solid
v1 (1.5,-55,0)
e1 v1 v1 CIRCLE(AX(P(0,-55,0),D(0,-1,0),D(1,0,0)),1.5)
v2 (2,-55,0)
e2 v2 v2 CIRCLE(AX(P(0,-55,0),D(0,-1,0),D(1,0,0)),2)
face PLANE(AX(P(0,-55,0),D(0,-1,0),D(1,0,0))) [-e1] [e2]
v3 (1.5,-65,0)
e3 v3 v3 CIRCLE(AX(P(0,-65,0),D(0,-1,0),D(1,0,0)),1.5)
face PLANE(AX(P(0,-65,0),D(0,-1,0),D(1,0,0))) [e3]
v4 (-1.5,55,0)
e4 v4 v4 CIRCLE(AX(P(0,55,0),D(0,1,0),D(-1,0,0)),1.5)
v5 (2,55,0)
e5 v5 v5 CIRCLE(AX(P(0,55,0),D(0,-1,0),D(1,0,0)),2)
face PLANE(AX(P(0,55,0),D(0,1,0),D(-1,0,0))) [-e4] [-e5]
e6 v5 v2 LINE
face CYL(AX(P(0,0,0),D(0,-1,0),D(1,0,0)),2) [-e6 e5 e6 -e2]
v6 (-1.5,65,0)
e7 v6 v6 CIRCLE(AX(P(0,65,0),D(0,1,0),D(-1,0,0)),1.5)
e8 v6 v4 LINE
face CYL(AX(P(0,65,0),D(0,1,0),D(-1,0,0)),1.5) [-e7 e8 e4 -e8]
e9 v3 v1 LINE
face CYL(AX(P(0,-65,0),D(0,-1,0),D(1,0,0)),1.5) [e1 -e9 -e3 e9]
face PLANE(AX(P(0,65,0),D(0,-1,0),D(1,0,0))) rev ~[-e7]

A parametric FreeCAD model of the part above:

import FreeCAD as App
import Part
import Sketcher
from FreeCAD import Vector

doc = App.newDocument("Part")
body = doc.addObject("PartDesign::Body", "Body")

# Sketch on XZ plane
sketch1 = body.newObject("Sketcher::SketchObject", "Sketch")
sketch1.AttachmentSupport = (doc.getObject("XZ_Plane"), [""])
sketch1.MapMode = "FlatFace"
sketch1.addGeometry(Part.Circle(Vector(0, 0, 0), Vector(0, 0, 1), 2), False)
sketch1.addConstraint(Sketcher.Constraint("Coincident", 0, 3, -1, 1))
sketch1.addConstraint(Sketcher.Constraint("Diameter", 0, 4.0))
pad1 = body.newObject("PartDesign::Pad", "Pad")
pad1.Profile = sketch1
pad1.Length = 130
pad1.Midplane = True

# Sketch on XZ plane
sketch2 = body.newObject("Sketcher::SketchObject", "Sketch001")
sketch2.AttachmentSupport = (doc.getObject("XZ_Plane"), [""])
sketch2.MapMode = "FlatFace"
sketch2.AttachmentOffset = App.Placement(Vector(0, 0, 65), App.Rotation())
sketch2.addGeometry(Part.Circle(Vector(0, 0, 0), Vector(0, 0, 1), 2), False)
sketch2.addGeometry(Part.Circle(Vector(0, 0, 0), Vector(0, 0, 1), 1.5), False)
sketch2.addConstraint(Sketcher.Constraint("Coincident", 0, 3, -1, 1))
sketch2.addConstraint(Sketcher.Constraint("Coincident", 1, 3, -1, 1))
sketch2.addConstraint(Sketcher.Constraint("Diameter", 0, 4.0))
sketch2.addConstraint(Sketcher.Constraint("Diameter", 1, 3.0))
pocket1 = body.newObject("PartDesign::Pocket", "Pocket")
pocket1.Profile = sketch2
pocket1.Length = 10

# Sketch on XZ plane
sketch3 = body.newObject("Sketcher::SketchObject", "Sketch002")
sketch3.AttachmentSupport = (doc.getObject("XZ_Plane"), [""])
sketch3.MapMode = "FlatFace"
sketch3.AttachmentOffset = App.Placement(Vector(0, 0, -65), App.Rotation())
sketch3.addGeometry(Part.Circle(Vector(0, 0, 0), Vector(0, 0, 1), 2), False)
sketch3.addGeometry(Part.Circle(Vector(0, 0, 0), Vector(0, 0, 1), 1.5), False)
sketch3.addConstraint(Sketcher.Constraint("Coincident", 0, 3, -1, 1))
sketch3.addConstraint(Sketcher.Constraint("Coincident", 1, 3, -1, 1))
sketch3.addConstraint(Sketcher.Constraint("Diameter", 0, 4.0))
sketch3.addConstraint(Sketcher.Constraint("Diameter", 1, 3.0))
pocket2 = body.newObject("PartDesign::Pocket", "Pocket001")
pocket2.Profile = sketch3
pocket2.Length = 10
pocket2.Reversed = True

doc.recompute()
